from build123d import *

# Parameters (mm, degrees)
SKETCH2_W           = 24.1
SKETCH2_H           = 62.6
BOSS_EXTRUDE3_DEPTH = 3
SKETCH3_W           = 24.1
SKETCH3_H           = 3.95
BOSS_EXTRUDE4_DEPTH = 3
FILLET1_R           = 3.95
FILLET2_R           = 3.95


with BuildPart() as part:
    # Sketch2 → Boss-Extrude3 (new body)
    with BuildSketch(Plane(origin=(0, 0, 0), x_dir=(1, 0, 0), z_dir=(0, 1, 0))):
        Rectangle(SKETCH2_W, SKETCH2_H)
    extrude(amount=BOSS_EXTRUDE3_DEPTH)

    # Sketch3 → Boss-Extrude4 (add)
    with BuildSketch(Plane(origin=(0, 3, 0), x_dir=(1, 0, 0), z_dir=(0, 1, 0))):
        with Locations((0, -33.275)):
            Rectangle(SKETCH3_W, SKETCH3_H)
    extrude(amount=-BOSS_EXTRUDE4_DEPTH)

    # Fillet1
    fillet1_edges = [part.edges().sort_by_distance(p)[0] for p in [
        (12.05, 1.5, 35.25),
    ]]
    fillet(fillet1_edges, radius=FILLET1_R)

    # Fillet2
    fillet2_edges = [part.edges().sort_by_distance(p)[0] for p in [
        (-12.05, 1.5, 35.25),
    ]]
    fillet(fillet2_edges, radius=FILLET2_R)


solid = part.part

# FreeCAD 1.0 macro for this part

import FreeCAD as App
import Part
import Sketcher

V = App.Vector


def edges_at(feature, points):
    """Names of the edges that pass closest to the given points."""
    edges = feature.Shape.Edges
    near = lambda p: min(range(len(edges)), key=lambda i: edges[i].distToShape(Part.Vertex(*p))[0])
    return sorted({f"Edge{near(p) + 1}" for p in points})

doc = App.newDocument("Part")
body = doc.addObject("PartDesign::Body", "Body")

sketch1 = body.newObject("Sketcher::SketchObject", "Sketch")
sketch1.AttachmentSupport = (doc.getObject("XZ_Plane"), [""])
sketch1.MapMode = "FlatFace"
sketch1.addGeometry(Part.LineSegment(V(-12, -31, 0), V(-12, 31, 0)), False)
sketch1.addGeometry(Part.LineSegment(V(-12, 31, 0), V(12, 31, 0)), False)
sketch1.addGeometry(Part.LineSegment(V(12, 31, 0), V(12, -31, 0)), False)
sketch1.addGeometry(Part.LineSegment(V(12, -31, 0), V(-12, -31, 0)), False)
sketch1.addConstraint(Sketcher.Constraint("Coincident", 0, 2, 1, 1))
sketch1.addConstraint(Sketcher.Constraint("Coincident", 1, 2, 2, 1))
sketch1.addConstraint(Sketcher.Constraint("Coincident", 2, 2, 3, 1))
sketch1.addConstraint(Sketcher.Constraint("Coincident", 3, 2, 0, 1))
sketch1.addConstraint(Sketcher.Constraint("Vertical", 0))
sketch1.addConstraint(Sketcher.Constraint("Horizontal", 1))
sketch1.addConstraint(Sketcher.Constraint("Vertical", 2))
sketch1.addConstraint(Sketcher.Constraint("Horizontal", 3))
sketch1.addConstraint(Sketcher.Constraint("Symmetric", 0, 2, 2, 2, -1, 1))
sketch1.addConstraint(Sketcher.Constraint("DistanceX", 1, 1, 1, 2, 24.1))
sketch1.addConstraint(Sketcher.Constraint("DistanceY", 0, 1, 0, 2, 62.6))
pad1 = body.newObject("PartDesign::Pad", "Pad")
pad1.Profile = sketch1
pad1.Length = 3
pad1.Reversed = True

sketch2 = body.newObject("Sketcher::SketchObject", "Sketch001")
sketch2.AttachmentSupport = (doc.getObject("XZ_Plane"), [""])
sketch2.MapMode = "FlatFace"
sketch2.AttachmentOffset = App.Placement(V(0, 0, -3), App.Rotation())
sketch2.addGeometry(Part.LineSegment(V(-12.1, 31.3, 0), V(-12.1, 35.2, 0)), False)
sketch2.addGeometry(Part.LineSegment(V(-12.1, 35.2, 0), V(12.1, 35.2, 0)), False)
sketch2.addGeometry(Part.LineSegment(V(12.1, 35.2, 0), V(12.1, 31.3, 0)), False)
sketch2.addGeometry(Part.LineSegment(V(12.1, 31.3, 0), V(-12.1, 31.3, 0)), False)
sketch2.addConstraint(Sketcher.Constraint("Coincident", 0, 2, 1, 1))
sketch2.addConstraint(Sketcher.Constraint("Coincident", 1, 2, 2, 1))
sketch2.addConstraint(Sketcher.Constraint("Coincident", 2, 2, 3, 1))
sketch2.addConstraint(Sketcher.Constraint("Coincident", 3, 2, 0, 1))
sketch2.addConstraint(Sketcher.Constraint("Vertical", 0))
sketch2.addConstraint(Sketcher.Constraint("Horizontal", 1))
sketch2.addConstraint(Sketcher.Constraint("Vertical", 2))
sketch2.addConstraint(Sketcher.Constraint("Horizontal", 3))
sketch2.addConstraint(Sketcher.Constraint("DistanceX", 1, 1, 1, 2, 24.1))
sketch2.addConstraint(Sketcher.Constraint("DistanceY", 0, 1, 0, 2, 3.95))
sketch2.addConstraint(Sketcher.Constraint("DistanceY", -1, 1, 2, 2, 31.3))
sketch2.addConstraint(Sketcher.Constraint("DistanceX", 0, 2, -1, 1, 12.05))
pad2 = body.newObject("PartDesign::Pad", "Pad001")
pad2.Profile = sketch2
pad2.Length = 3
doc.recompute()

fillet = body.newObject("PartDesign::Fillet", "Fillet")
fillet.Base = (pad2, edges_at(pad2, [(12.05, 1.5, 35.25)]))
fillet.Radius = 3.95
doc.recompute()

fillet2 = body.newObject("PartDesign::Fillet", "Fillet001")
fillet2.Base = (fillet, edges_at(fillet, [(-12.05, 1.5, 35.25)]))
fillet2.Radius = 3.95

doc.recompute()
